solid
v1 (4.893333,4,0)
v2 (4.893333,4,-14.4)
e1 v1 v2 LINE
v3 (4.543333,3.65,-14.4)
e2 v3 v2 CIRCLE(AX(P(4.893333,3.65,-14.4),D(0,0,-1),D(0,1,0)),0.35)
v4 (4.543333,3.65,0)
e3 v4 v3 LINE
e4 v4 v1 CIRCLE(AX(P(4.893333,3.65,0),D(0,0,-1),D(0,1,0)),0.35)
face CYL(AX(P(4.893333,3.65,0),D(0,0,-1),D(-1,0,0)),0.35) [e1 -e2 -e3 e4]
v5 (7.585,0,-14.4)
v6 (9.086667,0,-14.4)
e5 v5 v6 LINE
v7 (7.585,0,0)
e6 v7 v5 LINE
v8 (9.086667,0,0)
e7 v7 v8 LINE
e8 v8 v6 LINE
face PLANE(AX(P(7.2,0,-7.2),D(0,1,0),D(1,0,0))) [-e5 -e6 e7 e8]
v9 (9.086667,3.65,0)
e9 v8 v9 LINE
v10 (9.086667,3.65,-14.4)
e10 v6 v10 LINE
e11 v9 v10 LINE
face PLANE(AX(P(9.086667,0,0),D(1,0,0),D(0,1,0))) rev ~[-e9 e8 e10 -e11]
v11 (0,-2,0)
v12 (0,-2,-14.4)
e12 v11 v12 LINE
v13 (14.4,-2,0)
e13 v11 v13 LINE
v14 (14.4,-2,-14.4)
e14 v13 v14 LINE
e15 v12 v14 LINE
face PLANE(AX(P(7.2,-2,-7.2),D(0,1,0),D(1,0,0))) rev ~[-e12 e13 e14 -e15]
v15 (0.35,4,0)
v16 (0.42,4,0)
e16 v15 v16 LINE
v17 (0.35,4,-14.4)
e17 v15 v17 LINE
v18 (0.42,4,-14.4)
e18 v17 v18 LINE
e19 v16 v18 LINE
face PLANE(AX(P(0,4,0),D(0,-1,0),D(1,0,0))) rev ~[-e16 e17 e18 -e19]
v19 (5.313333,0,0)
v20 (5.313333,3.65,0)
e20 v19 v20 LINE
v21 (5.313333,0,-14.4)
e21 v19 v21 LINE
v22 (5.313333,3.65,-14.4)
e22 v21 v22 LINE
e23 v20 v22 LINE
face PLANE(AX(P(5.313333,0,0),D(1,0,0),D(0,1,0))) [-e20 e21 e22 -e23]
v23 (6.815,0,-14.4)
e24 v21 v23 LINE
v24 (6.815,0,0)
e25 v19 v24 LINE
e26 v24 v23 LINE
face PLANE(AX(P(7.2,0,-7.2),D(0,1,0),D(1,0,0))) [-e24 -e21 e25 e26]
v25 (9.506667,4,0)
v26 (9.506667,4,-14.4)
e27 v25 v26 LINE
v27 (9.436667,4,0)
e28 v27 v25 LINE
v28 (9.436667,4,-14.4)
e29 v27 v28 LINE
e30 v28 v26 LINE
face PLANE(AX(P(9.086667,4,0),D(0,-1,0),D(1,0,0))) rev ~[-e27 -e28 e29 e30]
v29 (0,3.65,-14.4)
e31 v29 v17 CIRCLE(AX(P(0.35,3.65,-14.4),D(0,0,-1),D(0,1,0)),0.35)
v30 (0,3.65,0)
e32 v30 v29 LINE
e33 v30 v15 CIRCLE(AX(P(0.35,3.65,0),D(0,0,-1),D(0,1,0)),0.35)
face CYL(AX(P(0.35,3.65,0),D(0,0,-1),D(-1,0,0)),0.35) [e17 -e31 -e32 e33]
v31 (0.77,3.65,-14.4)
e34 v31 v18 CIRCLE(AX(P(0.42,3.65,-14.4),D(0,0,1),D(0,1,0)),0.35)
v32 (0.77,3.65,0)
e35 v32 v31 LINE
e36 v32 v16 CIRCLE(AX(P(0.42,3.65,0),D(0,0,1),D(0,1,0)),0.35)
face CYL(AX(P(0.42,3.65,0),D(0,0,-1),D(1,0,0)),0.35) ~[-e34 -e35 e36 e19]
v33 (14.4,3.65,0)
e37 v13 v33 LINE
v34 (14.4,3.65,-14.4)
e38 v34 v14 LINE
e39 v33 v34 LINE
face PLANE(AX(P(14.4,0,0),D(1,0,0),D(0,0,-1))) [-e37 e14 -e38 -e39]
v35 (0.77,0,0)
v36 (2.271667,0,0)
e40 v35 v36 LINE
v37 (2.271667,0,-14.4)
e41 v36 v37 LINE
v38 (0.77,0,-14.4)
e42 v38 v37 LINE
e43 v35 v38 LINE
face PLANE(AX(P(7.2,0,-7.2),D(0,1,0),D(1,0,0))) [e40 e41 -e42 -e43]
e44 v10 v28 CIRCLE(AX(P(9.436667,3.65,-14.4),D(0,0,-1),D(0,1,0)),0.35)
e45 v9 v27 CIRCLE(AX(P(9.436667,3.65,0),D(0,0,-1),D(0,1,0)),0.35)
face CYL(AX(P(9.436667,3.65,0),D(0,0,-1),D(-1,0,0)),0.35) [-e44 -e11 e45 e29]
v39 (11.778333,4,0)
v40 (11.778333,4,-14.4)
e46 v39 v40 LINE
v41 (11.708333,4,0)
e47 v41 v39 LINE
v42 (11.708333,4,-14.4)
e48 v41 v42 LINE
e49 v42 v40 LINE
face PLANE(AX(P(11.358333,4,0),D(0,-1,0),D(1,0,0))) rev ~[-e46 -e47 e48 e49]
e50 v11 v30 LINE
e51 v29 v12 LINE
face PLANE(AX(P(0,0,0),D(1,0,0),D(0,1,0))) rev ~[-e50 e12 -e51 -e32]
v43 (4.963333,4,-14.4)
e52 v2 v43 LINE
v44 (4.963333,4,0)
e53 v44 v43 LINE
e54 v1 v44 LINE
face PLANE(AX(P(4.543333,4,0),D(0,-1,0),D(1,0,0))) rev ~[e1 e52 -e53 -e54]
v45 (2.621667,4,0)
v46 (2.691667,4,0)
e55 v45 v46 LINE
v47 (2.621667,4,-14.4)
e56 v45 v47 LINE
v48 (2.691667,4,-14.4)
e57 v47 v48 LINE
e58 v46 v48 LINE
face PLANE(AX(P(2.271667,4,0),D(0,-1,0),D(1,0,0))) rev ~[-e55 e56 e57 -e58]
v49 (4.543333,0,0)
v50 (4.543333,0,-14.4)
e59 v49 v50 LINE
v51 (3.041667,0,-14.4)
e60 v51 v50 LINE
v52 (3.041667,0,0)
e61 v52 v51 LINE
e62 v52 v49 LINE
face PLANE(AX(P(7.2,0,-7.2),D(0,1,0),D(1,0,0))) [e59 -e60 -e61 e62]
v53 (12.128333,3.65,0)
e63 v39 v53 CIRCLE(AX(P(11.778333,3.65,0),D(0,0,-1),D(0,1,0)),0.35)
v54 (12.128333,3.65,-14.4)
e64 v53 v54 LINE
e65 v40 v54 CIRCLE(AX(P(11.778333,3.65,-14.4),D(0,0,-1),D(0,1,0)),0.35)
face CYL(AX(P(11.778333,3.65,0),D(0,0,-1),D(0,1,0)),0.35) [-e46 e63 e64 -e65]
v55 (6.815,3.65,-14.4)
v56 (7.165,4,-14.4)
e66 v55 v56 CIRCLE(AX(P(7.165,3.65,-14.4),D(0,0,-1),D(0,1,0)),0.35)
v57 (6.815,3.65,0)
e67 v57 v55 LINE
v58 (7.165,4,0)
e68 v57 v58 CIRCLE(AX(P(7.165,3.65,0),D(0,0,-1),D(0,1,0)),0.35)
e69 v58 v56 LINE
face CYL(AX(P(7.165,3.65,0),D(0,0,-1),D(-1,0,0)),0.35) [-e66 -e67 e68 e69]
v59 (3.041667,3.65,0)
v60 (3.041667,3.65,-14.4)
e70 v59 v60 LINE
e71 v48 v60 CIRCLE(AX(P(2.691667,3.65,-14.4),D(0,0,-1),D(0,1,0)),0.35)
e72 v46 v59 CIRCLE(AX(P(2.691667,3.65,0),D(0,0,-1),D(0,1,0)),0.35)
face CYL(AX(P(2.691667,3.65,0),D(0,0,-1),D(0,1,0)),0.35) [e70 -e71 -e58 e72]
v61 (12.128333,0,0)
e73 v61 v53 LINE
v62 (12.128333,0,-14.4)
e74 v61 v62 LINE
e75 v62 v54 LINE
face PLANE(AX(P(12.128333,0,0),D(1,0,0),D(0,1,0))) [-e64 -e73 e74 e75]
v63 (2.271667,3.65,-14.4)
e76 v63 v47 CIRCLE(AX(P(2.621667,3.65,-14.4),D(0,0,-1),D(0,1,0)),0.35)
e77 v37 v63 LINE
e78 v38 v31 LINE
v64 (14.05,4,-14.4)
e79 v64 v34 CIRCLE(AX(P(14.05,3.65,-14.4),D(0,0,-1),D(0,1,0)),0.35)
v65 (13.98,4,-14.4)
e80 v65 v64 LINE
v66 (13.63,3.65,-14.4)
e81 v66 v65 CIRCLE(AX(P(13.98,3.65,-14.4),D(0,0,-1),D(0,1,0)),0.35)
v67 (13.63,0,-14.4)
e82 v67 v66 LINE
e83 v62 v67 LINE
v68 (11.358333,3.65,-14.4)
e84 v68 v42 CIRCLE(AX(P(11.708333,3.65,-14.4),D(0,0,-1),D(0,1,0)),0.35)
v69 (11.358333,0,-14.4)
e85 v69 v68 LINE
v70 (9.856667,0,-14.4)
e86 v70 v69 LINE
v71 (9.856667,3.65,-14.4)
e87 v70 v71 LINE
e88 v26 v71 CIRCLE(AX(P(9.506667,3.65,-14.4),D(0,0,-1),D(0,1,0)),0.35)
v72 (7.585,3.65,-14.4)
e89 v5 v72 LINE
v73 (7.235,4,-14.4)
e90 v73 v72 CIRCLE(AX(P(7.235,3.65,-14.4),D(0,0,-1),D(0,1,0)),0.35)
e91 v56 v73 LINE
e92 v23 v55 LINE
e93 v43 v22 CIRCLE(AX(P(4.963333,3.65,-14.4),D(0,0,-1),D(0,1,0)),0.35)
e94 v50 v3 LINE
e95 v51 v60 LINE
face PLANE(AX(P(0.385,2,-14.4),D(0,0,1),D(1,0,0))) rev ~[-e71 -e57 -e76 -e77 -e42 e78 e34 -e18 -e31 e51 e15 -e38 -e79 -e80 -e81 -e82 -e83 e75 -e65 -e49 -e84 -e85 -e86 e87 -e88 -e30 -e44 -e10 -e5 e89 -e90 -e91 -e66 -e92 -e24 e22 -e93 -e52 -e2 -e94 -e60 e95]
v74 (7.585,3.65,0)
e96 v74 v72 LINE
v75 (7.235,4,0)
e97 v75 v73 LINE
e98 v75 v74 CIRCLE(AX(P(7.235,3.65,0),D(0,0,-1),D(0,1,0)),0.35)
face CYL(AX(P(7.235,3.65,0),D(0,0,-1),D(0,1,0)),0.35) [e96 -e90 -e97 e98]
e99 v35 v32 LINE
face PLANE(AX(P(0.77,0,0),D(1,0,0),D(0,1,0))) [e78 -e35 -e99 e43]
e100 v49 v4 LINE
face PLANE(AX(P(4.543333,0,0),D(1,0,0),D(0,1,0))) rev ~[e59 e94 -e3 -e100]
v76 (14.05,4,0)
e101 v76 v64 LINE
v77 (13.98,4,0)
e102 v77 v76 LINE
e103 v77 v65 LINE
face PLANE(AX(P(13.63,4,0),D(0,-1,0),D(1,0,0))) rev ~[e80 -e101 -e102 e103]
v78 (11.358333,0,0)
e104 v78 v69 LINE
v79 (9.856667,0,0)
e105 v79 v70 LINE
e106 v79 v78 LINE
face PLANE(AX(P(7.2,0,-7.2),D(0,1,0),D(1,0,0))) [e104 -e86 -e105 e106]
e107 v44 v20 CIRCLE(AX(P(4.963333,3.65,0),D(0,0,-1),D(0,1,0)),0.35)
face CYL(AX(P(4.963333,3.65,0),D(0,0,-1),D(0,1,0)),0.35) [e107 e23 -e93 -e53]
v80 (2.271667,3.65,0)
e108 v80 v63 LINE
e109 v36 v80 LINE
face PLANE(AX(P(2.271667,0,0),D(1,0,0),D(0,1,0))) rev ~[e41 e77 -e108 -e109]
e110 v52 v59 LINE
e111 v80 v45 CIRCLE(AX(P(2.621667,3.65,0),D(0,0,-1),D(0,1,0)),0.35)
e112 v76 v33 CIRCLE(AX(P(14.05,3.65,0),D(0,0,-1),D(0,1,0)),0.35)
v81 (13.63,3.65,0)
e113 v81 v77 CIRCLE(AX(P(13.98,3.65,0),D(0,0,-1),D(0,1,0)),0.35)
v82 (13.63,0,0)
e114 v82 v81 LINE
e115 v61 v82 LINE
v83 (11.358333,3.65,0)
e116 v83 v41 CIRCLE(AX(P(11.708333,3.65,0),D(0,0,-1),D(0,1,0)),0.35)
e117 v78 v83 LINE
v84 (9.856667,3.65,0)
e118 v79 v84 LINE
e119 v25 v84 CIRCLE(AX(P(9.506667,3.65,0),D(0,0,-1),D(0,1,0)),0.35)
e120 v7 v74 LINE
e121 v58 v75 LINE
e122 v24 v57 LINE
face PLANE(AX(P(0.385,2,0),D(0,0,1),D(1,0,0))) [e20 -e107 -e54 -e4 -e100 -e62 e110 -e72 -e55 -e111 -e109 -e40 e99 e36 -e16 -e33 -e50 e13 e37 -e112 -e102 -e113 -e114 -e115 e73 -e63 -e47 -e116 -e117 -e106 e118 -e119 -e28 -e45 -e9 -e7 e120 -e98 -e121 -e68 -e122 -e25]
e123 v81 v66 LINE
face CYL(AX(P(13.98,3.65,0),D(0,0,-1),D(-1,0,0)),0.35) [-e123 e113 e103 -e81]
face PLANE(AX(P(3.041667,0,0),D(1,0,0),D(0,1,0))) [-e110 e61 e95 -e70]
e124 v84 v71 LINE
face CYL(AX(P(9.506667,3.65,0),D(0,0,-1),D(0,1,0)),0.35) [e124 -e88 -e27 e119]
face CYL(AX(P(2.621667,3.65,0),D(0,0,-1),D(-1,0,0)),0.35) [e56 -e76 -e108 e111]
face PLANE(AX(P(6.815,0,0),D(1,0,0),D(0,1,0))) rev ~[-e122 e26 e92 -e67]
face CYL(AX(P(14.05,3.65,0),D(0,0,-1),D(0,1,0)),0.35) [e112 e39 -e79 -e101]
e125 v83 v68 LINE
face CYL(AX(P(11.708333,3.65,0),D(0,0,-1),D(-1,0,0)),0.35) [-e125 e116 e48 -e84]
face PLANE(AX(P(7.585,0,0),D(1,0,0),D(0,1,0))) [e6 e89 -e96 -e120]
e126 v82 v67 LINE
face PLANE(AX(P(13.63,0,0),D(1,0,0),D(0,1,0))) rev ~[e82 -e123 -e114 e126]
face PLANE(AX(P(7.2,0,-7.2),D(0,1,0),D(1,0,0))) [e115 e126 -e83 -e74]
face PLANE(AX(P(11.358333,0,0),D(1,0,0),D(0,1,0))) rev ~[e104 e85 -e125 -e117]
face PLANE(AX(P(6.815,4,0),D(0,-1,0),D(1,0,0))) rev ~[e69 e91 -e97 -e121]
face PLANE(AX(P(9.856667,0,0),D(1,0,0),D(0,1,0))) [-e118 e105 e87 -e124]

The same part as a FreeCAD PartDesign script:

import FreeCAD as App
import Part
import Sketcher


def edges_at(feature, points):
    """Names of the edges that pass closest to the given points."""
    edges = feature.Shape.Edges
    near = lambda p: min(range(len(edges)), key=lambda i: edges[i].distToShape(Part.Vertex(*p))[0])
    return sorted({f"Edge{near(p) + 1}" for p in points})


def add_polygon(sketch, points):
    """Adds a closed chain of lines whose ends are joined by coincident constraints."""
    first, n = sketch.GeometryCount, len(points)
    for a, b in zip(points, points[1:] + points[:1]):
        sketch.addGeometry(Part.LineSegment(App.Vector(*a, 0), App.Vector(*b, 0)), False)
    for i in range(n):
        sketch.addConstraint(Sketcher.Constraint("Coincident", first + i, 2, first + (i + 1) % n, 1))

doc = App.newDocument("Part")
body = doc.addObject("PartDesign::Body", "Body")

sketch1 = doc.addObject("Sketcher::SketchObject", "Sketch")
body.addObject(sketch1)
sketch1.AttachmentSupport = (doc.XZ_Plane, [""])
sketch1.MapMode = "FlatFace"
add_polygon(sketch1, [(0, -14), (0, 0), (14, 0), (14, -14)])
sketch1.addConstraint([
    Sketcher.Constraint("Vertical", 0),
    Sketcher.Constraint("Horizontal", 1),
    Sketcher.Constraint("Vertical", 2),
    Sketcher.Constraint("Horizontal", 3),
    Sketcher.Constraint("Coincident", 0, 2, -1, 1),
    Sketcher.Constraint("Equal", 3, 0),
    Sketcher.Constraint("DistanceX", 1, 1, 1, 2, 14.4),
])
pad1 = doc.addObject("PartDesign::Pad", "Pad")
body.addObject(pad1)
pad1.Profile = sketch1
pad1.Length = 2

sketch2 = doc.addObject("Sketcher::SketchObject", "Sketch001")
body.addObject(sketch2)
sketch2.AttachmentSupport = (doc.XY_Plane, [""])
sketch2.MapMode = "FlatFace"
add_polygon(sketch2, [(2.3, 4), (2.3, 0), (3, 0), (3, 4)])
add_polygon(sketch2, [(0, 4), (0, 0), (0.8, 0), (0.8, 4)])
add_polygon(sketch2, [(4.5, 4), (4.5, 0), (5.3, 0), (5.3, 4)])
add_polygon(sketch2, [(6.8, 4), (6.8, 0), (7.6, 0), (7.6, 4)])
add_polygon(sketch2, [(9.1, 4), (9.1, 0), (9.9, 0), (9.9, 4)])
add_polygon(sketch2, [(11.4, 4), (11.4, 0), (12.1, 0), (12.1, 4)])
add_polygon(sketch2, [(13.6, 4), (13.6, 0), (14.4, 0), (14.4, 4)])
sketch2.addConstraint([
    Sketcher.Constraint("Vertical", 0),
    Sketcher.Constraint("Horizontal", 1),
    Sketcher.Constraint("Vertical", 2),
    Sketcher.Constraint("Horizontal", 3),
    Sketcher.Constraint("Vertical", 4),
    Sketcher.Constraint("Horizontal", 5),
    Sketcher.Constraint("Vertical", 6),
    Sketcher.Constraint("Horizontal", 7),
    Sketcher.Constraint("Vertical", 8),
    Sketcher.Constraint("Horizontal", 9),
    Sketcher.Constraint("Vertical", 10),
    Sketcher.Constraint("Horizontal", 11),
    Sketcher.Constraint("Vertical", 12),
    Sketcher.Constraint("Horizontal", 13),
    Sketcher.Constraint("Vertical", 14),
    Sketcher.Constraint("Horizontal", 15),
    Sketcher.Constraint("Vertical", 16),
    Sketcher.Constraint("Horizontal", 17),
    Sketcher.Constraint("Vertical", 18),
    Sketcher.Constraint("Horizontal", 19),
    Sketcher.Constraint("Vertical", 20),
    Sketcher.Constraint("Horizontal", 21),
    Sketcher.Constraint("Vertical", 22),
    Sketcher.Constraint("Horizontal", 23),
    Sketcher.Constraint("Vertical", 24),
    Sketcher.Constraint("Horizontal", 25),
    Sketcher.Constraint("Vertical", 26),
    Sketcher.Constraint("Horizontal", 27),
    Sketcher.Constraint("Coincident", 4, 2, -1, 1),
    Sketcher.Constraint("PointOnObject", 0, 2, -1),
    Sketcher.Constraint("PointOnObject", 8, 2, -1),
    Sketcher.Constraint("PointOnObject", 12, 2, -1),
    Sketcher.Constraint("PointOnObject", 16, 2, -1),
    Sketcher.Constraint("PointOnObject", 20, 2, -1),
    Sketcher.Constraint("PointOnObject", 24, 2, -1),
    Sketcher.Constraint("Horizontal", 3, 2, 6, 2),
    Sketcher.Constraint("Horizontal", 7, 2, 10, 2),
    Sketcher.Constraint("Horizontal", 11, 2, 14, 2),
    Sketcher.Constraint("Horizontal", 15, 2, 18, 2),
    Sketcher.Constraint("Horizontal", 19, 2, 22, 2),
    Sketcher.Constraint("Horizontal", 23, 2, 26, 2),
    Sketcher.Constraint("Equal", 3, 5),
    Sketcher.Constraint("Equal", 7, 9),
    Sketcher.Constraint("Equal", 11, 13),
    Sketcher.Constraint("Equal", 15, 17),
    Sketcher.Constraint("Equal", 19, 21),
    Sketcher.Constraint("Equal", 23, 25),
    Sketcher.Constraint("DistanceY", 0, 2, 0, 1, 4.0),
    Sketcher.Constraint("DistanceX", 1, 1, 1, 2, 0.77),
    Sketcher.Constraint("DistanceX", -1, 1, 25, 2, 14.4),
    Sketcher.Constraint("DistanceX", -1, 1, 12, 2, 6.815),
    Sketcher.Constraint("DistanceX", -1, 1, 0, 2, 2.271667),
    Sketcher.Constraint("DistanceX", -1, 1, 8, 2, 4.543333),
    Sketcher.Constraint("DistanceX", -1, 1, 16, 2, 9.086667),
    Sketcher.Constraint("DistanceX", -1, 1, 20, 2, 11.358333),
])
pad2 = doc.addObject("PartDesign::Pad", "Pad001")
body.addObject(pad2)
pad2.Profile = sketch2
pad2.Length = 14.4
pad2.Reversed = True
doc.recompute()

fillet = doc.addObject("PartDesign::Fillet", "Fillet")
body.addObject(fillet)
fillet.Base = (pad2, edges_at(pad2, [
    (0.77, 4, -7.2),
    (0, 4, -7.2),
    (3.042, 4, -7.2),
    (2.272, 4, -7.2),
    (5.313, 4, -7.2),
    (4.543, 4, -7.2),
    (7.585, 4, -7.2),
    (6.815, 4, -7.2),
    (9.857, 4, -7.2),
    (9.087, 4, -7.2),
    (12.128, 4, -7.2),
    (11.358, 4, -7.2),
    (14.4, 4, -7.2),
    (13.63, 4, -7.2),
]))
fillet.Radius = 0.35

doc.recompute()
